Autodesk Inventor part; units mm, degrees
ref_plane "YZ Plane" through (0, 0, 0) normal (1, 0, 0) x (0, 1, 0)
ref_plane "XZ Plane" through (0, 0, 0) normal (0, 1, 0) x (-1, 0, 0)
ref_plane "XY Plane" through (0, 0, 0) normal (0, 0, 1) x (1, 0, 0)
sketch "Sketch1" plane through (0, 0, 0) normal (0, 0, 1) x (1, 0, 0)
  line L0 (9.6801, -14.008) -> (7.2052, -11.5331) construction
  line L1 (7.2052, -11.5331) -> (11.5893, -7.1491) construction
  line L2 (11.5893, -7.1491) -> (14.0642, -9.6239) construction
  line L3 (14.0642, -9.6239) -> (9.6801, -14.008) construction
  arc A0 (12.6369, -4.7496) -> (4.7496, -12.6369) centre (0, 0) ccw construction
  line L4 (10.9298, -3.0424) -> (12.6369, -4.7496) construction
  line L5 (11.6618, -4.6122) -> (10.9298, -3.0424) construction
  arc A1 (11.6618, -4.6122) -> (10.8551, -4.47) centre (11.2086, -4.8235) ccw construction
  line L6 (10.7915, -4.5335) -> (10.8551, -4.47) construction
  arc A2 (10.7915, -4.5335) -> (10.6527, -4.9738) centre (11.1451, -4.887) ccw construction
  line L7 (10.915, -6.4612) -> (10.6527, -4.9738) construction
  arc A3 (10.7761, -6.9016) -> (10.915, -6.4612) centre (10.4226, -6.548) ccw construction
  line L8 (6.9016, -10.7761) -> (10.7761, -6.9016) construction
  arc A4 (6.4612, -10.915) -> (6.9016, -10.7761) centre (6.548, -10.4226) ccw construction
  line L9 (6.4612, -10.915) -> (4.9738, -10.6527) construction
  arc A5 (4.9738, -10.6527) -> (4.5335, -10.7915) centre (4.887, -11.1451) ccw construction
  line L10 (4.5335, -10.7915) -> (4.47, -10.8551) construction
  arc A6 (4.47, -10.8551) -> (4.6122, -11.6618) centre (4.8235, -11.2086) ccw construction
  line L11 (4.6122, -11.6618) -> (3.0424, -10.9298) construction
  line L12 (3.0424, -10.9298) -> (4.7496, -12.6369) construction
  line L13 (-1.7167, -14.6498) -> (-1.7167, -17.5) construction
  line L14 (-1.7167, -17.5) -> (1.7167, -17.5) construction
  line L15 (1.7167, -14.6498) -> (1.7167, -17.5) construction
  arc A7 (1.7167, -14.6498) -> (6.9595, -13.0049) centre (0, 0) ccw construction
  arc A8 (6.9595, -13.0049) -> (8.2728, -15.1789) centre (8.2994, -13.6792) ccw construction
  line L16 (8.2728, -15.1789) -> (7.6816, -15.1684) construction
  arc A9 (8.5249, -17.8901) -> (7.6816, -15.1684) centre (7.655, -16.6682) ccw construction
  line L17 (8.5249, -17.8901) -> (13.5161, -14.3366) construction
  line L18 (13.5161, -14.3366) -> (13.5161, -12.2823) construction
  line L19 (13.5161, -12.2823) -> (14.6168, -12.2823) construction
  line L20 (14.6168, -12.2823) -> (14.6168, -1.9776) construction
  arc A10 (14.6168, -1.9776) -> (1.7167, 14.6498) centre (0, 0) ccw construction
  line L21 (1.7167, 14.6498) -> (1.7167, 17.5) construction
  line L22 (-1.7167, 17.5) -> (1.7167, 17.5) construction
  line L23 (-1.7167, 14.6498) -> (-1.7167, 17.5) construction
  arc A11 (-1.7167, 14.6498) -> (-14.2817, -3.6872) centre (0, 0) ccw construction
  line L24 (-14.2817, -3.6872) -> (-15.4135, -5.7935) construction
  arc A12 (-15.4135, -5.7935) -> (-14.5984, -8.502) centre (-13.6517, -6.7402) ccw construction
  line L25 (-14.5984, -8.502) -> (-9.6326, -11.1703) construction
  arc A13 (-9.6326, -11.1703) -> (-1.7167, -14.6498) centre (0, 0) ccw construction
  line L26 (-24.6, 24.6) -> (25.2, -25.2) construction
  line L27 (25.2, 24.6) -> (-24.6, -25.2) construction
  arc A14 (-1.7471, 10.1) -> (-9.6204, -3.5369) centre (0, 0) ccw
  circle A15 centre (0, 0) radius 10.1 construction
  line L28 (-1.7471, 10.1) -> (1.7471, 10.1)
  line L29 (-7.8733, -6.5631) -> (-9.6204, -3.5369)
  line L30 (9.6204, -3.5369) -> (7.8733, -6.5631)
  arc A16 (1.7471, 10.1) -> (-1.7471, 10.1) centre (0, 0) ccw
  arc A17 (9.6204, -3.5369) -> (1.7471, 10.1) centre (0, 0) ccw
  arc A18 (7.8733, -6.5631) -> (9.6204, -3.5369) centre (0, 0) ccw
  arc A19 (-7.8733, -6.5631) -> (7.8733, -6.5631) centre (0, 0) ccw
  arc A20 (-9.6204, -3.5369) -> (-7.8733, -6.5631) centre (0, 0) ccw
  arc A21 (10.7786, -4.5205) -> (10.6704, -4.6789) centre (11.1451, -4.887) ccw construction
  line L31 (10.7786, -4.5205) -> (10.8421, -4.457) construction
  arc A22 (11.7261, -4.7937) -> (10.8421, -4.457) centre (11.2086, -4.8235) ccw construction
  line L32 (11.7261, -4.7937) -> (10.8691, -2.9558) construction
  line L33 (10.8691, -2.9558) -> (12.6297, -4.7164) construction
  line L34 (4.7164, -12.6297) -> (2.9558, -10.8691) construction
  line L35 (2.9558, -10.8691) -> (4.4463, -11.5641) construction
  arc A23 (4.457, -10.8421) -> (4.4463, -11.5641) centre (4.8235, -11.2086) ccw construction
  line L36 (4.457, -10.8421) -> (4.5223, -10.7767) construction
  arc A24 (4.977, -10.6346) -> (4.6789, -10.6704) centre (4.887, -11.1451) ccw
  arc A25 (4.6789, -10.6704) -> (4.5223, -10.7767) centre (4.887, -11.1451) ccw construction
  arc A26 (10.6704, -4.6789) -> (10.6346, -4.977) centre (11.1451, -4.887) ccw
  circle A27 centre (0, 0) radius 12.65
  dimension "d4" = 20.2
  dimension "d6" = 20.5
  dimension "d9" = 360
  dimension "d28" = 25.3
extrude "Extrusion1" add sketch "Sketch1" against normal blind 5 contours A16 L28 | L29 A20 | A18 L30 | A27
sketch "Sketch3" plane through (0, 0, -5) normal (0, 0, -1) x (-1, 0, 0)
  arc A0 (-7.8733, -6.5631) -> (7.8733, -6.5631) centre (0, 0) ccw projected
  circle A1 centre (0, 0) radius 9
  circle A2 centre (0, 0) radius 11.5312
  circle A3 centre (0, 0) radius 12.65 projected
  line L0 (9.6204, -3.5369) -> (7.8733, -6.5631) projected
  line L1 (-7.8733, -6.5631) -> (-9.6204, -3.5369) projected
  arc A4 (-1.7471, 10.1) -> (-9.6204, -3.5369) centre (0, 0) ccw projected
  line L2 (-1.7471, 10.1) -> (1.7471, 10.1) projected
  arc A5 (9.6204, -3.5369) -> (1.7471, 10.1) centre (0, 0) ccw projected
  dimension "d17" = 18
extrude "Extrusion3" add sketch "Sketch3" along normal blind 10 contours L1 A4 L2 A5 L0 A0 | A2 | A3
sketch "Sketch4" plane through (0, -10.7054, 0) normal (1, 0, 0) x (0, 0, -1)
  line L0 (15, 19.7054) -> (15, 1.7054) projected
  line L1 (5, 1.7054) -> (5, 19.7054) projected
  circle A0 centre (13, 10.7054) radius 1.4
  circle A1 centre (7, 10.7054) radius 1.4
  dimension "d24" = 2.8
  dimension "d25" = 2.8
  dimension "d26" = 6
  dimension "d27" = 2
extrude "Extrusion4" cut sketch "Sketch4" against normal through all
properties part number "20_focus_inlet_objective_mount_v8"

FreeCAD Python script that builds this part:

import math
import FreeCAD as App
import Part
import Sketcher
Q = App.Units.Quantity

doc = App.newDocument("Part")
params = doc.addObject("Spreadsheet::Sheet", "Params")
for row, (alias, value) in enumerate([
    ("sketch1_diameter", "25.3 mm"),
    ("sketch1_radius", "10.25 mm"),
    ("pad1_length", "5 mm"),
    ("sketch2_diameter", "18 mm"),
    ("sketch2_diameter2", "25.3 mm"),
    ("pad2_length", "10 mm"),
    ("sketch3_diameter", "2.8 mm"),
], start=1):
    params.set(f"A{row}", alias)
    params.set(f"B{row}", "=" + value)
    params.setAlias(f"B{row}", alias)

body = doc.addObject("PartDesign::Body", "Body")

# Sketch on XY plane
sketch1 = body.newObject("Sketcher::SketchObject", "Sketch")
sketch1.AttachmentSupport = (doc.getObject("XY_Plane"), [""])
sketch1.MapMode = "FlatFace"
sketch1.addGeometry([
    Part.Circle(App.Vector(0, 0, 0), App.Vector(0, 0, 1), 12.7),  # 0
    Part.LineSegment(App.Vector(-1.7, 10.1, 0), App.Vector(1.7, 10.1, 0)),  # 1
    Part.ArcOfCircle(Part.Circle(App.Vector(0, 0, 0), App.Vector(0, 0, 1), 10.2), math.radians(-20), math.radians(80)),  # 2
    Part.LineSegment(App.Vector(9.6, -3.5, 0), App.Vector(7.9, -6.6, 0)),  # 3
    Part.ArcOfCircle(Part.Circle(App.Vector(0, 0, 0), App.Vector(0, 0, 1), 10.3), math.radians(-140), math.radians(-40)),  # 4
    Part.LineSegment(App.Vector(-7.9, -6.6, 0), App.Vector(-9.6, -3.5, 0)),  # 5
    Part.ArcOfCircle(Part.Circle(App.Vector(0, 0, 0), App.Vector(0, 0, 1), 10.2), math.radians(100), math.radians(200)),  # 6
], False)
sketch1.addConstraint([
    Sketcher.Constraint("Coincident", 1, 2, 2, 2),
    Sketcher.Constraint("Coincident", 2, 1, 3, 1),
    Sketcher.Constraint("Coincident", 3, 2, 4, 2),
    Sketcher.Constraint("Coincident", 4, 1, 5, 1),
    Sketcher.Constraint("Coincident", 5, 2, 6, 2),
    Sketcher.Constraint("Coincident", 6, 1, 1, 1),
    Sketcher.Constraint("Horizontal", 1),
    Sketcher.Constraint("Coincident", 0, 3, -1, 1),
    Sketcher.Constraint("Coincident", 2, 3, -1, 1),
    Sketcher.Constraint("Coincident", 4, 3, -1, 1),
    Sketcher.Constraint("Coincident", 6, 3, -1, 1),
    Sketcher.Constraint("Equal", 2, 4),
    Sketcher.Constraint("Equal", 4, 6),
    Sketcher.Constraint("Horizontal", 3, 2, 4, 1),
    Sketcher.Constraint("Horizontal", 2, 1, 5, 2),
    Sketcher.Constraint("Diameter", 0, Q("25.3 mm")),
    Sketcher.Constraint("Radius", 2, Q("10.25 mm")),
    Sketcher.Constraint("Angle", 3, Q("-119.999 deg")),
    Sketcher.Constraint("DistanceY", -1, 1, 1, 2, Q("10.1 mm")),
    Sketcher.Constraint("DistanceY", 2, 1, -1, 1, Q("3.537 mm")),
])
sketch1.setExpression("Constraints[15]", "Params.sketch1_diameter")
sketch1.setExpression("Constraints[16]", "Params.sketch1_radius")
pad1 = body.newObject("PartDesign::Pad", "Pad")
pad1.Profile = sketch1
pad1.setExpression("Length", "Params.pad1_length")
pad1.Reversed = True

# Sketch on XY plane
sketch2 = body.newObject("Sketcher::SketchObject", "Sketch001")
sketch2.AttachmentSupport = (doc.getObject("XY_Plane"), [""])
sketch2.MapMode = "FlatFace"
sketch2.AttachmentOffset = App.Placement(App.Vector(0, 0, -5), App.Rotation())
sketch2.addGeometry([
    Part.Circle(App.Vector(0, 0, 0), App.Vector(0, 0, 1), 13),
    Part.Circle(App.Vector(0, 0, 0), App.Vector(0, 0, 1), 9),
], False)
sketch2.addConstraint([
    Sketcher.Constraint("Coincident", 0, 3, -1, 1),
    Sketcher.Constraint("Coincident", 1, 3, -1, 1),
    Sketcher.Constraint("Diameter", 1, Q("18 mm")),
    Sketcher.Constraint("Diameter", 0, Q("25.3 mm")),
])
sketch2.setExpression("Constraints[2]", "Params.sketch2_diameter")
sketch2.setExpression("Constraints[3]", "Params.sketch2_diameter2")
pad2 = body.newObject("PartDesign::Pad", "Pad001")
pad2.Profile = sketch2
pad2.setExpression("Length", "Params.pad2_length")
pad2.Reversed = True

# Sketch on YZ plane
sketch3 = body.newObject("Sketcher::SketchObject", "Sketch002")
sketch3.AttachmentSupport = (doc.getObject("YZ_Plane"), [""])
sketch3.MapMode = "FlatFace"
sketch3.addGeometry([
    Part.Circle(App.Vector(0, -13, 0), App.Vector(0, 0, 1), 1.4),
    Part.Circle(App.Vector(0, -7, 0), App.Vector(0, 0, 1), 1.4),
], False)
sketch3.addConstraint([
    Sketcher.Constraint("Equal", 0, 1),
    Sketcher.Constraint("PointOnObject", 0, 3, -2),
    Sketcher.Constraint("PointOnObject", 1, 3, -2),
    Sketcher.Constraint("Diameter", 0, Q("2.8 mm")),
    Sketcher.Constraint("DistanceY", 0, 3, 1, 3, Q("6 mm")),
    Sketcher.Constraint("DistanceY", 0, 3, -1, 1, Q("13 mm")),
])
sketch3.setExpression("Constraints[3]", "Params.sketch3_diameter")
pocket1 = body.newObject("PartDesign::Pocket", "Pocket")
pocket1.Profile = sketch3
pocket1.Type = "ThroughAll"

doc.recompute()
